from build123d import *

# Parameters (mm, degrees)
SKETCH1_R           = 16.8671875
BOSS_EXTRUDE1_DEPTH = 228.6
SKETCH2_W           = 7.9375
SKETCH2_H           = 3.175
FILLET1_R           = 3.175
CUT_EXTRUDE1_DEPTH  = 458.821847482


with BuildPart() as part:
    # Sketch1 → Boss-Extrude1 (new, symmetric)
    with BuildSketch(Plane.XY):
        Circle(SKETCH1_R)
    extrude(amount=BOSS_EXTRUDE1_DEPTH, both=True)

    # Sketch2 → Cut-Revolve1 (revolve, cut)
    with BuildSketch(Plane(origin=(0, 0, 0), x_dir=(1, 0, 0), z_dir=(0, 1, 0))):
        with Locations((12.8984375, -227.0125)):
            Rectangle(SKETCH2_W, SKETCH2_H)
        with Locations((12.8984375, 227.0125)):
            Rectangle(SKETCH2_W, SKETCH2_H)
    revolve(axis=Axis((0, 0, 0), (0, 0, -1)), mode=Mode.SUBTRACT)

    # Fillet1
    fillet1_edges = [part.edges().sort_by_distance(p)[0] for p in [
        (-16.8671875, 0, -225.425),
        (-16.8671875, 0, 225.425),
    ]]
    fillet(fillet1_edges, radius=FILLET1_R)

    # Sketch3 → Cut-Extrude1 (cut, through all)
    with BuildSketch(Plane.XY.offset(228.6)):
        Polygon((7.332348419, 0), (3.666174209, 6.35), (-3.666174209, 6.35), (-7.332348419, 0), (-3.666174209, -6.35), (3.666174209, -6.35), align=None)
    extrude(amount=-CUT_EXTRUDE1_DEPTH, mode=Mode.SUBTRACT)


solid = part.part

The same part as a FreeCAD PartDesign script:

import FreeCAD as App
import Part
import Sketcher
Q = App.Units.Quantity


def edges_at(feature, points):
    """Names of the edges that pass closest to the given points."""
    edges = feature.Shape.Edges
    near = lambda p: min(range(len(edges)), key=lambda i: edges[i].distToShape(Part.Vertex(*p))[0])
    return sorted({f"Edge{near(p) + 1}" for p in points})


def add_polygon(sketch, points):
    """Adds a closed chain of lines whose ends are joined by coincident constraints."""
    first, n = sketch.GeometryCount, len(points)
    for a, b in zip(points, points[1:] + points[:1]):
        sketch.addGeometry(Part.LineSegment(App.Vector(*a, 0), App.Vector(*b, 0)), False)
    for i in range(n):
        sketch.addConstraint(Sketcher.Constraint("Coincident", first + i, 2, first + (i + 1) % n, 1))

doc = App.newDocument("Part")
params = doc.addObject("Spreadsheet::Sheet", "Params")
for row, (alias, value) in enumerate([
    ("sketch1_diameter", "1.328125 in"),
    ("pad1_length", "18 in"),
    ("sketch2_width", "0.3125 in"),
    ("sketch2_height", "0.125 in"),
    ("groove_angle", "360 deg"),
    ("fillet_radius", "0.125 in"),
], start=1):
    params.set(f"A{row}", alias)
    params.set(f"B{row}", "=" + value)
    params.setAlias(f"B{row}", alias)

body = doc.addObject("PartDesign::Body", "Body")

# Sketch on XY plane
sketch1 = body.newObject("Sketcher::SketchObject", "Sketch")
sketch1.AttachmentSupport = (doc.getObject("XY_Plane"), [""])
sketch1.MapMode = "FlatFace"
sketch1.addGeometry(Part.Circle(App.Vector(0, 0, 0), App.Vector(0, 0, 1), 16.867188), False)
sketch1.addConstraint([
    Sketcher.Constraint("Coincident", 0, 3, -1, 1),
    Sketcher.Constraint("Diameter", 0, Q("1.328125 in")),
])
sketch1.setExpression("Constraints[1]", "Params.sketch1_diameter")
pad1 = body.newObject("PartDesign::Pad", "Pad")
pad1.Profile = sketch1
pad1.setExpression("Length", "Params.pad1_length")
pad1.Midplane = True

# Sketch on XZ plane
sketch2 = body.newObject("Sketcher::SketchObject", "Sketch001")
sketch2.AttachmentSupport = (doc.getObject("XZ_Plane"), [""])
sketch2.MapMode = "FlatFace"
add_polygon(sketch2, [(8.929688, 225.425), (8.929688, 228.6), (16.867188, 228.6), (16.867188, 225.425)])  # lines 0-3
add_polygon(sketch2, [(8.929688, -228.6), (8.929688, -225.425), (16.867188, -225.425), (16.867188, -228.6)])  # lines 4-7
sketch2.addConstraint([
    Sketcher.Constraint("Vertical", 0),
    Sketcher.Constraint("Horizontal", 1),
    Sketcher.Constraint("Vertical", 2),
    Sketcher.Constraint("Horizontal", 3),
    Sketcher.Constraint("Vertical", 4),
    Sketcher.Constraint("Horizontal", 5),
    Sketcher.Constraint("Vertical", 6),
    Sketcher.Constraint("Horizontal", 7),
    Sketcher.Constraint("Symmetric", 3, 2, 4, 2, -1),
    Sketcher.Constraint("Symmetric", 1, 2, 6, 2, -1),
    Sketcher.Constraint("DistanceY", -1, 1, 0, 2, Q("9 in")),
    Sketcher.Constraint("DistanceX", 1, 1, 1, 2, Q("0.3125 in")),
    Sketcher.Constraint("DistanceY", 0, 1, 0, 2, Q("0.125 in")),
    Sketcher.Constraint("DistanceX", -1, 1, 0, 2, 8.929688),
])
sketch2.setExpression("Constraints[19]", "Params.sketch2_width")
sketch2.setExpression("Constraints[20]", "Params.sketch2_height")
groove = body.newObject("PartDesign::Groove", "Groove")
groove.Profile = sketch2
groove.ReferenceAxis = (sketch2, ["V_Axis"])
groove.setExpression("Angle", "Params.groove_angle")
doc.recompute()

fillet = body.newObject("PartDesign::Fillet", "Fillet")
fillet.Base = (groove, edges_at(groove, [(-16.867, 0, -225.425), (-16.867, 0, 225.425)]))
fillet.setExpression("Radius", "Params.fillet_radius")

# Sketch on XY plane
sketch3 = body.newObject("Sketcher::SketchObject", "Sketch002")
sketch3.AttachmentSupport = (doc.getObject("XY_Plane"), [""])
sketch3.MapMode = "FlatFace"
sketch3.AttachmentOffset = App.Placement(App.Vector(0, 0, 9 * 25.4), App.Rotation())
add_polygon(sketch3, [(7.332348, 0), (3.666174, 6.35), (-3.666174, 6.35), (-7.332348, 0), (-3.666174, -6.35), (3.666174, -6.35)])  # lines 0-5
sketch3.addConstraint([
    Sketcher.Constraint("Horizontal", 1),
    Sketcher.Constraint("Horizontal", 4),
    Sketcher.Constraint("Symmetric", 0, 2, 3, 2, -1, 1),
    Sketcher.Constraint("Symmetric", 2, 2, 5, 2, -1, 1),
    Sketcher.Constraint("PointOnObject", 2, 2, -1),
    Sketcher.Constraint("Parallel", 2, 5),
    Sketcher.Constraint("Vertical", 1, 2, 3, 2),
    Sketcher.Constraint("Angle", 0, Q("120 deg")),
    Sketcher.Constraint("DistanceY", 3, 2, 1, 2, Q("0.5 in")),
    Sketcher.Constraint("DistanceX", 1, 2, 1, 1, 7.332348),
])
pocket1 = body.newObject("PartDesign::Pocket", "Pocket")
pocket1.Profile = sketch3
pocket1.Type = "ThroughAll"

doc.recompute()
